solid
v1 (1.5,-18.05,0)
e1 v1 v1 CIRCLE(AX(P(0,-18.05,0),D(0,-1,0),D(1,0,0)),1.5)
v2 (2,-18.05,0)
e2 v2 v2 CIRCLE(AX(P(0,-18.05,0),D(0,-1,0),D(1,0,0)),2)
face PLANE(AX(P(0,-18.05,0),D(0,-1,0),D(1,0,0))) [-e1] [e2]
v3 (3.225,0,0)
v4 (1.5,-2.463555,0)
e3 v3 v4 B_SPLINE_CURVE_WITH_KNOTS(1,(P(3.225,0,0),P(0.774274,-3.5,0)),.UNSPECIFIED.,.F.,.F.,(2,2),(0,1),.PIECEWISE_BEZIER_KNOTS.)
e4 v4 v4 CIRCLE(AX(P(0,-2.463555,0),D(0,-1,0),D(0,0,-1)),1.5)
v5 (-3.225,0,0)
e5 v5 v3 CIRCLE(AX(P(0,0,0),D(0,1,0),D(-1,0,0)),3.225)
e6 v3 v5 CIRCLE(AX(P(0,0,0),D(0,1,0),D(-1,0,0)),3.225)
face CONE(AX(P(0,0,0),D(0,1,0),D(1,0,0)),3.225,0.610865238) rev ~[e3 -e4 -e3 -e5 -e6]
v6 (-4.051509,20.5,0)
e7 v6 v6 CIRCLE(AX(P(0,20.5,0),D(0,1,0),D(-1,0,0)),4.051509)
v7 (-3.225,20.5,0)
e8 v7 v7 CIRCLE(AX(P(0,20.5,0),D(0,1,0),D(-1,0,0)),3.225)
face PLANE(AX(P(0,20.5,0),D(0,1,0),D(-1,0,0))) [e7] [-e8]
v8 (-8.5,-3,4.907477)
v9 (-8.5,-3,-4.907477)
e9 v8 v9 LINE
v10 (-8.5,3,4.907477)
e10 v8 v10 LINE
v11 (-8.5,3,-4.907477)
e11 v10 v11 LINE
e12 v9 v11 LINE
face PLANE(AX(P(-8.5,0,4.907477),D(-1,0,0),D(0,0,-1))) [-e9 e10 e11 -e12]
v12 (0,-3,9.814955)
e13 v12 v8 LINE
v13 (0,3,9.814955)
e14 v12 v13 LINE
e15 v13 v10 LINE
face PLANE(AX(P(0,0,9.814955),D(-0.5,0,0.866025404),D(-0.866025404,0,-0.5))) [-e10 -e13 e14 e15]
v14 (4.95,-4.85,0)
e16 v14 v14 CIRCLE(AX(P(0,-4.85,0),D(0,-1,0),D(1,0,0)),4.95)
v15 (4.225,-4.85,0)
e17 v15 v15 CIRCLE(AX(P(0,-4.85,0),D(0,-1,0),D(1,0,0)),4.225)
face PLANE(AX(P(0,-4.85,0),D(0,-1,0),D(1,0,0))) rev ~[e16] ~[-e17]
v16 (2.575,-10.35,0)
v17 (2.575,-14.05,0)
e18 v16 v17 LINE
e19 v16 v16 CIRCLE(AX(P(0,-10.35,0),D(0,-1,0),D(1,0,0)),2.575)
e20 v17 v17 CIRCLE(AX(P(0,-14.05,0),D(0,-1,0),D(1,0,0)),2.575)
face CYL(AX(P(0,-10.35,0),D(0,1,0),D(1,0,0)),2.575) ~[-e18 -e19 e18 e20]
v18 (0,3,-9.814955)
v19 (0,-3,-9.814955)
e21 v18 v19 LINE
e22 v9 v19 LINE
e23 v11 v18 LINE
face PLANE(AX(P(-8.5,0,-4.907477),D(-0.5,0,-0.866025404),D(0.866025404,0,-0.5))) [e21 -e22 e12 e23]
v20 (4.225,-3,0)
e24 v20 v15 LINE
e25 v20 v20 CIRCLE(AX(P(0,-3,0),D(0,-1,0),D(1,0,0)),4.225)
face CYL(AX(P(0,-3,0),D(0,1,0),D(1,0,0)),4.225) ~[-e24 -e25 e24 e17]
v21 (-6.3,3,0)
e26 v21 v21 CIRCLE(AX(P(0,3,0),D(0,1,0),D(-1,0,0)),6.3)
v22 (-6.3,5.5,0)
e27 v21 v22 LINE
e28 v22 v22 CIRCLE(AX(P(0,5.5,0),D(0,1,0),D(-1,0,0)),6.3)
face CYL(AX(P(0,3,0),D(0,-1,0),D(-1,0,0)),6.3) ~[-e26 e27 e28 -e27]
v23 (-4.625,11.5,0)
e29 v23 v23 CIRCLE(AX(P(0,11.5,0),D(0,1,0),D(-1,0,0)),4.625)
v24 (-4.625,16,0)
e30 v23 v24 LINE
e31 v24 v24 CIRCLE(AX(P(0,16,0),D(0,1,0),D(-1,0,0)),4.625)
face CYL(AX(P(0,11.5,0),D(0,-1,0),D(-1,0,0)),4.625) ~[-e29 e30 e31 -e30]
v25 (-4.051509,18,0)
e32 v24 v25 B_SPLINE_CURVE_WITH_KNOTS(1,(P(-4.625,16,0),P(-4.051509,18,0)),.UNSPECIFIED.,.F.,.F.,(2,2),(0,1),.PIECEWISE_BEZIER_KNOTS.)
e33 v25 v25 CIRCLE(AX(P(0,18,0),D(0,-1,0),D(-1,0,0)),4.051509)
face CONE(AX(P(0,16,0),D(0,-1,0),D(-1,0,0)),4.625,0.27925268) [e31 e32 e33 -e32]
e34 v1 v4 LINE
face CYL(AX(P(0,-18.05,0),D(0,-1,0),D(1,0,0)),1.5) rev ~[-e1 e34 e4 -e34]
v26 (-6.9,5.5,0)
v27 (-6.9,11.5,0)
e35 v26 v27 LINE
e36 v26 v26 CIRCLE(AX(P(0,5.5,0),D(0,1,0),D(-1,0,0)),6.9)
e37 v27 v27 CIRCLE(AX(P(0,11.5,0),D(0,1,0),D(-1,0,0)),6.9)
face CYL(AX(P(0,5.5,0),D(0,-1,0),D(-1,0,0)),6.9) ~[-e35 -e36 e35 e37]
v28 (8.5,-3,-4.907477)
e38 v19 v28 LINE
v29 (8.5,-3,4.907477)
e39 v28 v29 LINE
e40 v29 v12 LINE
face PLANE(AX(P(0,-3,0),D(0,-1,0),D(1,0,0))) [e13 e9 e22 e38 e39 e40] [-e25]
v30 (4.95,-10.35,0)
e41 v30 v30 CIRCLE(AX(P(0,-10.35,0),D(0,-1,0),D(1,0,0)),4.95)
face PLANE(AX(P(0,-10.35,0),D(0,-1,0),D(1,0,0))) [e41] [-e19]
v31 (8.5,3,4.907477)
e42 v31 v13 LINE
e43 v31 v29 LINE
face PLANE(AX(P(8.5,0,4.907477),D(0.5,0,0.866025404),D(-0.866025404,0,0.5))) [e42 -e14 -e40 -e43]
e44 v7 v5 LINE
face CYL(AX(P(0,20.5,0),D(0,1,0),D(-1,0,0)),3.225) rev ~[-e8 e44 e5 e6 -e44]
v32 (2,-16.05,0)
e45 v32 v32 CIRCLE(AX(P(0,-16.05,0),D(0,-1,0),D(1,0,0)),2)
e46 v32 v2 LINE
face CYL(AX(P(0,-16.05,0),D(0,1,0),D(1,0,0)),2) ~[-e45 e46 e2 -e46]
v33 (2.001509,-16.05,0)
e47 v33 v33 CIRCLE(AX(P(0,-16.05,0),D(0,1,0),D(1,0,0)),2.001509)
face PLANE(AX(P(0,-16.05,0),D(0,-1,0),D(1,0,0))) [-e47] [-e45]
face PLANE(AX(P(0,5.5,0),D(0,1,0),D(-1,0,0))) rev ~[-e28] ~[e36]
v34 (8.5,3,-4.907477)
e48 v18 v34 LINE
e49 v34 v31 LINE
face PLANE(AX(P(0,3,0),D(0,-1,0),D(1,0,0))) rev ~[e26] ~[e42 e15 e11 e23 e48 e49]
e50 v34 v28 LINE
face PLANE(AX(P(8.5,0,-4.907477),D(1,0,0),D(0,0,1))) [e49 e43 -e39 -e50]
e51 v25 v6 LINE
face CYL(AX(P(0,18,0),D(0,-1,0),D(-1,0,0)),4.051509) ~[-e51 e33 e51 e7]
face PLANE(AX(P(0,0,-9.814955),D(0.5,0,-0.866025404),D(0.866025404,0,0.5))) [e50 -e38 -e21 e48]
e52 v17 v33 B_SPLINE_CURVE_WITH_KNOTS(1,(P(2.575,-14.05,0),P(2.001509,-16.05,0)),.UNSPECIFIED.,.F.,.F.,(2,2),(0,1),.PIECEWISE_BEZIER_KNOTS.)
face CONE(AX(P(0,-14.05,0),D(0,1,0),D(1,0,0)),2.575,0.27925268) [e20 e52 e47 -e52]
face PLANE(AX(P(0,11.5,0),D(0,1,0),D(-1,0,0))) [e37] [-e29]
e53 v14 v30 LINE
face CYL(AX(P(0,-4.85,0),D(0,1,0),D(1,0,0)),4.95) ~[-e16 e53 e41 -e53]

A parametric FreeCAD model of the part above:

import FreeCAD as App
import Part
import Sketcher

V = App.Vector
Q = App.Units.Quantity

doc = App.newDocument("Part")
body = doc.addObject("PartDesign::Body", "Body")

# Sketch on XZ plane
sketch1 = body.newObject("Sketcher::SketchObject", "Sketch")
sketch1.AttachmentSupport = (doc.getObject("XZ_Plane"), [""])
sketch1.MapMode = "FlatFace"
sketch1.addGeometry([
    Part.LineSegment(V(-8, -5, 0), V(0, -10, 0)),  # 0
    Part.LineSegment(V(0, -10, 0), V(8, -5, 0)),  # 1
    Part.LineSegment(V(8, -5, 0), V(8, 5, 0)),  # 2
    Part.LineSegment(V(8, 5, 0), V(0, 10, 0)),  # 3
    Part.LineSegment(V(0, 10, 0), V(-8, 5, 0)),  # 4
    Part.LineSegment(V(-8, 5, 0), V(-8, -5, 0)),  # 5
], False)
sketch1.addConstraint([
    Sketcher.Constraint("Coincident", 0, 2, 1, 1),
    Sketcher.Constraint("Coincident", 1, 2, 2, 1),
    Sketcher.Constraint("Coincident", 2, 2, 3, 1),
    Sketcher.Constraint("Coincident", 3, 2, 4, 1),
    Sketcher.Constraint("Coincident", 4, 2, 5, 1),
    Sketcher.Constraint("Coincident", 5, 2, 0, 1),
    Sketcher.Constraint("Vertical", 2),
    Sketcher.Constraint("Vertical", 5),
    Sketcher.Constraint("Symmetric", 0, 2, 3, 2, -1, 1),
    Sketcher.Constraint("Symmetric", 1, 2, 4, 2, -1, 1),
    Sketcher.Constraint("PointOnObject", 0, 2, -2),
    Sketcher.Constraint("Parallel", 0, 3),
    Sketcher.Constraint("Horizontal", 2, 2, 4, 2),
    Sketcher.Constraint("Angle", 0, Q("-30 deg")),
    Sketcher.Constraint("DistanceX", 4, 2, 2, 2, 17.0),
    Sketcher.Constraint("DistanceY", 2, 1, 2, 2, 9.814955),
])
pad1 = body.newObject("PartDesign::Pad", "Pad")
pad1.Profile = sketch1
pad1.Length = 6
pad1.Midplane = True

# Sketch on XZ plane
sketch2 = body.newObject("Sketcher::SketchObject", "Sketch001")
sketch2.AttachmentSupport = (doc.getObject("XZ_Plane"), [""])
sketch2.MapMode = "FlatFace"
sketch2.AttachmentOffset = App.Placement(V(0, 0, -3), App.Rotation())
sketch2.addGeometry(Part.Circle(V(0, 0, 0), V(0, 0, 1), 6), False)
sketch2.addConstraint([
    Sketcher.Constraint("Coincident", 0, 3, -1, 1),
    Sketcher.Constraint("Diameter", 0, 12.6),
])
pad2 = body.newObject("PartDesign::Pad", "Pad001")
pad2.Profile = sketch2
pad2.Length = 2.5
pad2.Reversed = True

# Sketch on XZ plane
sketch3 = body.newObject("Sketcher::SketchObject", "Sketch002")
sketch3.AttachmentSupport = (doc.getObject("XZ_Plane"), [""])
sketch3.MapMode = "FlatFace"
sketch3.AttachmentOffset = App.Placement(V(0, 0, -5.5), App.Rotation())
sketch3.addGeometry(Part.Circle(V(0, 0, 0), V(0, 0, 1), 7), False)
sketch3.addConstraint([
    Sketcher.Constraint("Coincident", 0, 3, -1, 1),
    Sketcher.Constraint("Diameter", 0, 13.8),
])
pad3 = body.newObject("PartDesign::Pad", "Pad002")
pad3.Profile = sketch3
pad3.Length = 6
pad3.Reversed = True

# Sketch on XZ plane
sketch4 = body.newObject("Sketcher::SketchObject", "Sketch003")
sketch4.AttachmentSupport = (doc.getObject("XZ_Plane"), [""])
sketch4.MapMode = "FlatFace"
sketch4.AttachmentOffset = App.Placement(V(0, 0, -11.5), App.Rotation())
sketch4.addGeometry(Part.Circle(V(0, 0, 0), V(0, 0, 1), 4.6), False)
sketch4.addConstraint([
    Sketcher.Constraint("Coincident", 0, 3, -1, 1),
    Sketcher.Constraint("Diameter", 0, 9.25),
])
pad4 = body.newObject("PartDesign::Pad", "Pad003")
pad4.Profile = sketch4
pad4.Length = 4.5
pad4.Reversed = True

# Sketch on XZ plane
sketch5 = body.newObject("Sketcher::SketchObject", "Sketch004")
sketch5.AttachmentSupport = (doc.getObject("XZ_Plane"), [""])
sketch5.MapMode = "FlatFace"
sketch5.AttachmentOffset = App.Placement(V(0, 0, -16), App.Rotation())
sketch5.addGeometry(Part.Circle(V(0, 0, 0), V(0, 0, 1), 4.6), False)
sketch5.addConstraint([
    Sketcher.Constraint("Coincident", 0, 3, -1, 1),
    Sketcher.Constraint("Diameter", 0, 9.25),
])
pad5 = body.newObject("PartDesign::Pad", "Pad004")
pad5.Profile = sketch5
pad5.Length = 2
pad5.Reversed = True
pad5.TaperAngle = -16

# Sketch on XZ plane
sketch6 = body.newObject("Sketcher::SketchObject", "Sketch005")
sketch6.AttachmentSupport = (doc.getObject("XZ_Plane"), [""])
sketch6.MapMode = "FlatFace"
sketch6.AttachmentOffset = App.Placement(V(0, 0, -18), App.Rotation())
sketch6.addGeometry(Part.Circle(V(0, 0, 0), V(0, 0, 1), 4.1), False)
sketch6.addConstraint([
    Sketcher.Constraint("Coincident", 0, 3, -1, 1),
    Sketcher.Constraint("Diameter", 0, 8.103018),
])
pad6 = body.newObject("PartDesign::Pad", "Pad005")
pad6.Profile = sketch6
pad6.Length = 2.5
pad6.Reversed = True

# Sketch on XZ plane
sketch7 = body.newObject("Sketcher::SketchObject", "Sketch006")
sketch7.AttachmentSupport = (doc.getObject("XZ_Plane"), [""])
sketch7.MapMode = "FlatFace"
sketch7.AttachmentOffset = App.Placement(V(0, 0, -20.5), App.Rotation())
sketch7.addGeometry(Part.Circle(V(0, 0, 0), V(0, 0, 1), 3.2), False)
sketch7.addConstraint([
    Sketcher.Constraint("Coincident", 0, 3, -1, 1),
    Sketcher.Constraint("Diameter", 0, 6.45),
])
pocket1 = body.newObject("PartDesign::Pocket", "Pocket")
pocket1.Profile = sketch7
pocket1.Length = 20.5
pocket1.Reversed = True

# Sketch on XZ plane
sketch8 = body.newObject("Sketcher::SketchObject", "Sketch007")
sketch8.AttachmentSupport = (doc.getObject("XZ_Plane"), [""])
sketch8.MapMode = "FlatFace"
sketch8.AttachmentOffset = App.Placement(V(0, 0, 3), App.Rotation())
sketch8.addGeometry(Part.Circle(V(0, 0, 0), V(0, 0, 1), 4.2), False)
sketch8.addConstraint([
    Sketcher.Constraint("Coincident", 0, 3, -1, 1),
    Sketcher.Constraint("Diameter", 0, 8.45),
])
pad7 = body.newObject("PartDesign::Pad", "Pad006")
pad7.Profile = sketch8
pad7.Length = 1.85

# Sketch on XZ plane
sketch9 = body.newObject("Sketcher::SketchObject", "Sketch008")
sketch9.AttachmentSupport = (doc.getObject("XZ_Plane"), [""])
sketch9.MapMode = "FlatFace"
sketch9.AttachmentOffset = App.Placement(V(0, 0, 4.85), App.Rotation())
sketch9.addGeometry(Part.Circle(V(0, 0, 0), V(0, 0, 1), 5), False)
sketch9.addConstraint([
    Sketcher.Constraint("Coincident", 0, 3, -1, 1),
    Sketcher.Constraint("Diameter", 0, 9.9),
])
pad8 = body.newObject("PartDesign::Pad", "Pad007")
pad8.Profile = sketch9
pad8.Length = 5.5

# Sketch on XZ plane
sketch10 = body.newObject("Sketcher::SketchObject", "Sketch009")
sketch10.AttachmentSupport = (doc.getObject("XZ_Plane"), [""])
sketch10.MapMode = "FlatFace"
sketch10.AttachmentOffset = App.Placement(V(0, 0, 10.35), App.Rotation())
sketch10.addGeometry(Part.Circle(V(0, 0, 0), V(0, 0, 1), 2.6), False)
sketch10.addConstraint([
    Sketcher.Constraint("Coincident", 0, 3, -1, 1),
    Sketcher.Constraint("Diameter", 0, 5.15),
])
pad9 = body.newObject("PartDesign::Pad", "Pad008")
pad9.Profile = sketch10
pad9.Length = 3.7

# Sketch on XZ plane
sketch11 = body.newObject("Sketcher::SketchObject", "Sketch010")
sketch11.AttachmentSupport = (doc.getObject("XZ_Plane"), [""])
sketch11.MapMode = "FlatFace"
sketch11.AttachmentOffset = App.Placement(V(0, 0, 14.05), App.Rotation())
sketch11.addGeometry(Part.Circle(V(0, 0, 0), V(0, 0, 1), 2.6), False)
sketch11.addConstraint([
    Sketcher.Constraint("Coincident", 0, 3, -1, 1),
    Sketcher.Constraint("Diameter", 0, 5.15),
])
pad10 = body.newObject("PartDesign::Pad", "Pad009")
pad10.Profile = sketch11
pad10.Length = 2
pad10.TaperAngle = -16

# Sketch on XZ plane
sketch12 = body.newObject("Sketcher::SketchObject", "Sketch011")
sketch12.AttachmentSupport = (doc.getObject("XZ_Plane"), [""])
sketch12.MapMode = "FlatFace"
sketch12.AttachmentOffset = App.Placement(V(0, 0, 16.05), App.Rotation())
sketch12.addGeometry(Part.Circle(V(0, 0, 0), V(0, 0, 1), 2), False)
sketch12.addConstraint([
    Sketcher.Constraint("Coincident", 0, 3, -1, 1),
    Sketcher.Constraint("Diameter", 0, 4.0),
])
pad11 = body.newObject("PartDesign::Pad", "Pad010")
pad11.Profile = sketch12
pad11.Length = 2

# Sketch on XZ plane
sketch13 = body.newObject("Sketcher::SketchObject", "Sketch012")
sketch13.AttachmentSupport = (doc.getObject("XZ_Plane"), [""])
sketch13.MapMode = "FlatFace"
sketch13.AttachmentOffset = App.Placement(V(0, 0, 18.05), App.Rotation())
sketch13.addGeometry(Part.Circle(V(0, 0, 0), V(0, 0, 1), 1.5), False)
sketch13.addConstraint([
    Sketcher.Constraint("Coincident", 0, 3, -1, 1),
    Sketcher.Constraint("Diameter", 0, 3.0),
])
pocket2 = body.newObject("PartDesign::Pocket", "Pocket001")
pocket2.Profile = sketch13
pocket2.Type = "ThroughAll"

# Sketch on XZ plane
sketch14 = body.newObject("Sketcher::SketchObject", "Sketch013")
sketch14.AttachmentSupport = (doc.getObject("XZ_Plane"), [""])
sketch14.MapMode = "FlatFace"
sketch14.addGeometry(Part.Circle(V(0, 0, 0), V(0, 0, 1), 3.2), False)
sketch14.addConstraint([
    Sketcher.Constraint("Coincident", 0, 3, -1, 1),
    Sketcher.Constraint("Diameter", 0, 6.45),
])
pocket3 = body.newObject("PartDesign::Pocket", "Pocket002")
pocket3.Profile = sketch14
pocket3.Length = 3.5
pocket3.Reversed = True
pocket3.TaperAngle = -35

doc.recompute()
